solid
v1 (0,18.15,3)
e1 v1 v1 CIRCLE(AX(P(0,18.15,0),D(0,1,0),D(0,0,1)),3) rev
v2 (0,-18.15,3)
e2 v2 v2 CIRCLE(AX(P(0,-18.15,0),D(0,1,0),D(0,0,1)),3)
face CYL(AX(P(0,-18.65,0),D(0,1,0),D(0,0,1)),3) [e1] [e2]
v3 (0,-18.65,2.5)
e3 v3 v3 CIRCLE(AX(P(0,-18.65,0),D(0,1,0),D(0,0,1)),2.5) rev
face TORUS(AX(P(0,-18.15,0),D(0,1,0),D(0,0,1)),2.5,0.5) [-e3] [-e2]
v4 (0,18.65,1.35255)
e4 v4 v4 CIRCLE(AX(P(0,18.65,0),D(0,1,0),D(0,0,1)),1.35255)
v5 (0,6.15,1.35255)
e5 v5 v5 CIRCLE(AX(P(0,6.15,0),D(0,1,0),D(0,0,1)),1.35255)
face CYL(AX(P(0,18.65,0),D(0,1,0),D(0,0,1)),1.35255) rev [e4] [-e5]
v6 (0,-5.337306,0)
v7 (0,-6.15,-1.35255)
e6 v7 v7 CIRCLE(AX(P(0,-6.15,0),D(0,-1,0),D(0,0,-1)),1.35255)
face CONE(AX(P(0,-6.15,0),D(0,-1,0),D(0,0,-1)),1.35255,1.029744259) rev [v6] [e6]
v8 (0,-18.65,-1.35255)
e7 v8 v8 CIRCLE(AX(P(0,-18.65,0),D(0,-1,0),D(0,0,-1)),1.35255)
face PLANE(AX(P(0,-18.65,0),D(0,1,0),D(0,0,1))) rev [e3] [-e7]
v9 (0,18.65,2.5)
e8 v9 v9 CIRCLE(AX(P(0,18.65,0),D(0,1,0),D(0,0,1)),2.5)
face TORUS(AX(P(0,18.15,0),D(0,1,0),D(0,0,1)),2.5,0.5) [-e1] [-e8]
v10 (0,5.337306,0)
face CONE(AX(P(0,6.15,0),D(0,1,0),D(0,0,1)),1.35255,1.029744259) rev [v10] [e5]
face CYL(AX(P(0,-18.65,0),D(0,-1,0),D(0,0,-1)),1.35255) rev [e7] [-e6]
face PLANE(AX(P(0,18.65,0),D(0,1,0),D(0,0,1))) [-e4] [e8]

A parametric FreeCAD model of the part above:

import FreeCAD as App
import Part
import Sketcher

V = App.Vector
Q = App.Units.Quantity


def edges_at(feature, points):
    """Names of the edges that pass closest to the given points."""
    edges = feature.Shape.Edges
    near = lambda p: min(range(len(edges)), key=lambda i: edges[i].distToShape(Part.Vertex(*p))[0])
    return sorted({f"Edge{near(p) + 1}" for p in points})

doc = App.newDocument("Part")
body = doc.addObject("PartDesign::Body", "Body")

sketch1 = doc.addObject("Sketcher::SketchObject", "Sketch")
body.addObject(sketch1)
sketch1.AttachmentSupport = (doc.XZ_Plane, [""])
sketch1.MapMode = "FlatFace"
sketch1.addGeometry(Part.Circle(V(0, 0, 0), V(0, 0, 1), 3), False)
sketch1.addConstraint(Sketcher.Constraint("Coincident", 0, 3, -1, 1))
sketch1.addConstraint(Sketcher.Constraint("Diameter", 0, Q("6 mm")))
pad1 = doc.addObject("PartDesign::Pad", "Pad")
body.addObject(pad1)
pad1.Profile = sketch1
pad1.Type = "TwoLengths"
pad1.Length = 18.65
pad1.Length2 = 18.65
pad1.Reversed = True

sketch2 = doc.addObject("Sketcher::SketchObject", "Sketch001")
body.addObject(sketch2)
sketch2.AttachmentSupport = (doc.XZ_Plane, [""])
sketch2.MapMode = "FlatFace"
sketch2.AttachmentOffset = App.Placement(V(0, 0, -18.65), App.Rotation())
sketch2.addGeometry(Part.Circle(V(0, 0, 0), V(0, 0, 1), 1.4), False)
sketch2.addConstraint(Sketcher.Constraint("Coincident", 0, 3, -1, 1))
sketch2.addConstraint(Sketcher.Constraint("Diameter", 0, Q("2.7051 mm")))
doc.recompute()
hole = doc.addObject("PartDesign::Hole", "Hole")
body.addObject(hole)
hole.Profile = sketch2
hole.ThreadType = "None"
hole.Diameter = 2.7051
hole.DepthType = "Dimension"
hole.Depth = 12.5
hole.DrillPoint = "Angled"
hole.DrillPointAngle = 118
hole.Reversed = True

sketch3 = doc.addObject("Sketcher::SketchObject", "Sketch002")
body.addObject(sketch3)
sketch3.AttachmentSupport = (doc.XZ_Plane, [""])
sketch3.MapMode = "FlatFace"
sketch3.AttachmentOffset = App.Placement(V(0, 0, 18.65), App.Rotation())
sketch3.addGeometry(Part.Circle(V(0, 0, 0), V(0, 0, 1), 1.4), False)
sketch3.addConstraint(Sketcher.Constraint("Coincident", 0, 3, -1, 1))
sketch3.addConstraint(Sketcher.Constraint("Diameter", 0, Q("2.7051 mm")))
doc.recompute()
hole2 = doc.addObject("PartDesign::Hole", "Hole001")
body.addObject(hole2)
hole2.Profile = sketch3
hole2.ThreadType = "None"
hole2.Diameter = 2.7051
hole2.DepthType = "Dimension"
hole2.Depth = 12.5
hole2.DrillPoint = "Angled"
hole2.DrillPointAngle = 118
doc.recompute()

fillet = doc.addObject("PartDesign::Fillet", "Fillet")
body.addObject(fillet)
fillet.Base = (hole2, edges_at(hole2, [(0, -18.65, -3), (0, 18.65, -3)]))
fillet.Radius = 0.5

doc.recompute()
